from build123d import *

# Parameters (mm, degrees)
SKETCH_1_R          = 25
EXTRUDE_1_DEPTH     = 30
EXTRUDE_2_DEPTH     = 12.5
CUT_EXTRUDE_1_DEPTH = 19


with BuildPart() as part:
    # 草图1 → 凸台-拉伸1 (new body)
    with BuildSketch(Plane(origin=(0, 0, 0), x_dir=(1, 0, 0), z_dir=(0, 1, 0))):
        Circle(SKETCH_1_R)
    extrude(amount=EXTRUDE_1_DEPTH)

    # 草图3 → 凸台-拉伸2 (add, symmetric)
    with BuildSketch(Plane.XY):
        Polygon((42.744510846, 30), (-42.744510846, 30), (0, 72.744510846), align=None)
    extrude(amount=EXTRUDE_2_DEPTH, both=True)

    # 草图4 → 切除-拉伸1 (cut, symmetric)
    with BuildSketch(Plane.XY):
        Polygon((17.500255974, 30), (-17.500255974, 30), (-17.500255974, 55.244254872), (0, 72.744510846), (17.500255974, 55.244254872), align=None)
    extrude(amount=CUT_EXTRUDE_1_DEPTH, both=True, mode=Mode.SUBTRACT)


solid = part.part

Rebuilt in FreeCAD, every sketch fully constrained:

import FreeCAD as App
import Part
import Sketcher
Q = App.Units.Quantity


def add_polygon(sketch, points):
    """Adds a closed chain of lines whose ends are joined by coincident constraints."""
    first, n = sketch.GeometryCount, len(points)
    for a, b in zip(points, points[1:] + points[:1]):
        sketch.addGeometry(Part.LineSegment(App.Vector(*a, 0), App.Vector(*b, 0)), False)
    for i in range(n):
        sketch.addConstraint(Sketcher.Constraint("Coincident", first + i, 2, first + (i + 1) % n, 1))

doc = App.newDocument("Part")
params = doc.addObject("Spreadsheet::Sheet", "Params")
for row, (alias, value) in enumerate([
    ("sketch1_diameter", "50 mm"),
    ("pad1_length", "30 mm"),
    ("pad2_length", "25 mm"),
    ("pocket1_length", "38 mm"),
], start=1):
    params.set(f"A{row}", alias)
    params.set(f"B{row}", "=" + value)
    params.setAlias(f"B{row}", alias)

body = doc.addObject("PartDesign::Body", "Body")

# Sketch on XZ plane
sketch1 = doc.addObject("Sketcher::SketchObject", "Sketch")
body.addObject(sketch1)
sketch1.AttachmentSupport = (doc.XZ_Plane, [""])
sketch1.MapMode = "FlatFace"
sketch1.addGeometry(Part.Circle(App.Vector(0, 0, 0), App.Vector(0, 0, 1), 25), False)
sketch1.addConstraint([
    Sketcher.Constraint("Coincident", 0, 3, -1, 1),
    Sketcher.Constraint("Diameter", 0, Q("50 mm")),
])
sketch1.setExpression("Constraints[1]", "Params.sketch1_diameter")
pad1 = doc.addObject("PartDesign::Pad", "Pad")
body.addObject(pad1)
pad1.Profile = sketch1
pad1.setExpression("Length", "Params.pad1_length")
pad1.Reversed = True

# Sketch on XY plane
sketch2 = doc.addObject("Sketcher::SketchObject", "Sketch001")
body.addObject(sketch2)
sketch2.AttachmentSupport = (doc.XY_Plane, [""])
sketch2.MapMode = "FlatFace"
add_polygon(sketch2, [(-43, 30), (43, 30), (0, 73)])  # lines 0-2
sketch2.addConstraint([
    Sketcher.Constraint("Horizontal", 0),
    Sketcher.Constraint("PointOnObject", 1, 2, -2),
    Sketcher.Constraint("Perpendicular", 1, 2),
    Sketcher.Constraint("Equal", 1, 2),
    Sketcher.Constraint("DistanceY", -1, 1, 0, 2, Q("30 mm")),
    Sketcher.Constraint("DistanceX", 0, 1, 0, 2, Q("85.489022 mm")),
])
pad2 = doc.addObject("PartDesign::Pad", "Pad001")
body.addObject(pad2)
pad2.Profile = sketch2
pad2.setExpression("Length", "Params.pad2_length")
pad2.Midplane = True

# Sketch on XY plane
sketch3 = doc.addObject("Sketcher::SketchObject", "Sketch002")
body.addObject(sketch3)
sketch3.AttachmentSupport = (doc.XY_Plane, [""])
sketch3.MapMode = "FlatFace"
add_polygon(sketch3, [(-18, 30), (18, 30), (18, 55), (0, 73), (-18, 55)])  # lines 0-4
sketch3.addConstraint([
    Sketcher.Constraint("Horizontal", 0),
    Sketcher.Constraint("Vertical", 1),
    Sketcher.Constraint("Vertical", 4),
    Sketcher.Constraint("Symmetric", 1, 2, 3, 2, -2),
    Sketcher.Constraint("PointOnObject", 2, 2, -2),
    Sketcher.Constraint("Perpendicular", 2, 3),
    Sketcher.Constraint("DistanceY", -1, 1, 0, 2, Q("30 mm")),
    Sketcher.Constraint("Distance", 2, Q("24.749099 mm")),
    Sketcher.Constraint("DistanceY", 1, 1, 1, 2, Q("25.244255 mm")),
])
pocket1 = doc.addObject("PartDesign::Pocket", "Pocket")
body.addObject(pocket1)
pocket1.Profile = sketch3
pocket1.setExpression("Length", "Params.pocket1_length")
pocket1.Midplane = True

doc.recompute()
